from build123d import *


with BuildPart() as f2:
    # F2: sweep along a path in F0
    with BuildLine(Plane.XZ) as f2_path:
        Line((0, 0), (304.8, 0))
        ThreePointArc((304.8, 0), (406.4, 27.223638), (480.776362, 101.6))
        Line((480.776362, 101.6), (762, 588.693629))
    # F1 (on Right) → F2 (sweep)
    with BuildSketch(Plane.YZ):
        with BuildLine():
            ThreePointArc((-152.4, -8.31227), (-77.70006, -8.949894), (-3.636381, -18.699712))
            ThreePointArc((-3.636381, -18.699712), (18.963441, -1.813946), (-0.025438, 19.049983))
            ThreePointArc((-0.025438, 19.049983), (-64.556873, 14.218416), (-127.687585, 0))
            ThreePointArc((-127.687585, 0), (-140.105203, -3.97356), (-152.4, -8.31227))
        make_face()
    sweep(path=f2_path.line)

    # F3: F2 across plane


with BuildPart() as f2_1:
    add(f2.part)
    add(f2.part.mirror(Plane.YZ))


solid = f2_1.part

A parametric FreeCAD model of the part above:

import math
import FreeCAD as App
import Part
import Sketcher
from FreeCAD import Vector
Q = App.Units.Quantity

doc = App.newDocument("Part")
body = doc.addObject("PartDesign::Body", "Body")

# Sketch on YZ plane
sketch1 = doc.addObject("Sketcher::SketchObject", "Sketch")
body.addObject(sketch1)
sketch1.AttachmentSupport = (doc.YZ_Plane, [""])
sketch1.MapMode = "FlatFace"
sketch1.addGeometry(Part.ArcOfCircle(Part.Circle(Vector(-120, -618, 0), Vector(0, 0, 1), 611), math.radians(79), math.radians(93.02)), False)
sketch1.addGeometry(Part.ArcOfCircle(Part.Circle(Vector(0, 0, 0), Vector(0, 0, 1), 19), math.radians(-101), math.radians(90)), False)
sketch1.addGeometry(Part.ArcOfCircle(Part.Circle(Vector(1, -422, 0), Vector(0, 0, 1), 441), math.radians(90.08), math.radians(106.9)), False)
sketch1.addGeometry(Part.ArcOfCircle(Part.Circle(Vector(1, -422, 0), Vector(0, 0, 1), 441), math.radians(106.9), math.radians(110.28)), False)
sketch1.addConstraint(Sketcher.Constraint("Tangent", 0, 1, 1, 1))
sketch1.addConstraint(Sketcher.Constraint("Tangent", 1, 2, 2, 1))
sketch1.addConstraint(Sketcher.Constraint("Tangent", 2, 2, 3, 1))
sketch1.addConstraint(Sketcher.Constraint("Coincident", 3, 2, 0, 2))
sketch1.addConstraint(Sketcher.Constraint("Coincident", 1, 3, -1, 1))
sketch1.addConstraint(Sketcher.Constraint("PointOnObject", 2, 2, -1))
sketch1.addConstraint(Sketcher.Constraint("Radius", 1, Q("0.75 in")))
sketch1.addConstraint(Sketcher.Constraint("DistanceX", 3, 2, -1, 1, Q("6 in")))
sketch1.addConstraint(Sketcher.Constraint("Radius", 0, 610.932239))
sketch1.addConstraint(Sketcher.Constraint("Radius", 3, 441.233759))
sketch1.addConstraint(Sketcher.Constraint("DistanceX", -1, 1, 3, 3, Q("0.0222 in")))
sketch1.addConstraint(Sketcher.Constraint("Radius", 2, 441.233375))

# Sketch on XZ plane
sketch2 = doc.addObject("Sketcher::SketchObject", "Sketch001")
body.addObject(sketch2)
sketch2.AttachmentSupport = (doc.XZ_Plane, [""])
sketch2.MapMode = "FlatFace"
sketch2.addGeometry(Part.LineSegment(Vector(0, 0, 0), Vector(305, 0, 0)), False)
sketch2.addGeometry(Part.ArcOfCircle(Part.Circle(Vector(305, 203, 0), Vector(0, 0, 1), 203), math.radians(-90), math.radians(-30)), False)
sketch2.addGeometry(Part.LineSegment(Vector(481, 102, 0), Vector(762, 589, 0)), False)
sketch2.addConstraint(Sketcher.Constraint("Tangent", 0, 2, 1, 1))
sketch2.addConstraint(Sketcher.Constraint("Tangent", 1, 2, 2, 1))
sketch2.addConstraint(Sketcher.Constraint("Horizontal", 0))
sketch2.addConstraint(Sketcher.Constraint("Coincident", 0, 1, -1, 1))
sketch2.addConstraint(Sketcher.Constraint("Radius", 1, Q("8 in")))
sketch2.addConstraint(Sketcher.Constraint("DistanceX", 0, 1, 0, 2, Q("12 in")))
sketch2.addConstraint(Sketcher.Constraint("DistanceX", -1, 1, 2, 2, Q("30 in")))
sketch2.addConstraint(Sketcher.Constraint("Angle", 2, Q("60 deg")))
doc.recompute()

additivepipe = doc.addObject("PartDesign::AdditivePipe", "AdditivePipe")
body.addObject(additivepipe)
additivepipe.Profile = sketch1
additivepipe.Spine = (sketch2, ["Edge1", "Edge2", "Edge3"])
body2 = doc.addObject("PartDesign::Body", "Body001")
doc.recompute()

body2.BaseFeature = body
doc.recompute()

mirroring = doc.addObject("Part::Mirroring", "Mirroring")
mirroring.Source = body
mirroring.Base = Vector(0, 0, 0)
mirroring.Normal = Vector(1, 0, 0)
body3 = doc.addObject("PartDesign::Body", "Body002")
body3.BaseFeature = mirroring
boolean = doc.addObject("PartDesign::Boolean", "Boolean")
body2.addObject(boolean)
boolean.Type = "Fuse"
boolean.addObjects([body3])
doc.recompute()
mirroring.Visibility = False

doc.recompute()
